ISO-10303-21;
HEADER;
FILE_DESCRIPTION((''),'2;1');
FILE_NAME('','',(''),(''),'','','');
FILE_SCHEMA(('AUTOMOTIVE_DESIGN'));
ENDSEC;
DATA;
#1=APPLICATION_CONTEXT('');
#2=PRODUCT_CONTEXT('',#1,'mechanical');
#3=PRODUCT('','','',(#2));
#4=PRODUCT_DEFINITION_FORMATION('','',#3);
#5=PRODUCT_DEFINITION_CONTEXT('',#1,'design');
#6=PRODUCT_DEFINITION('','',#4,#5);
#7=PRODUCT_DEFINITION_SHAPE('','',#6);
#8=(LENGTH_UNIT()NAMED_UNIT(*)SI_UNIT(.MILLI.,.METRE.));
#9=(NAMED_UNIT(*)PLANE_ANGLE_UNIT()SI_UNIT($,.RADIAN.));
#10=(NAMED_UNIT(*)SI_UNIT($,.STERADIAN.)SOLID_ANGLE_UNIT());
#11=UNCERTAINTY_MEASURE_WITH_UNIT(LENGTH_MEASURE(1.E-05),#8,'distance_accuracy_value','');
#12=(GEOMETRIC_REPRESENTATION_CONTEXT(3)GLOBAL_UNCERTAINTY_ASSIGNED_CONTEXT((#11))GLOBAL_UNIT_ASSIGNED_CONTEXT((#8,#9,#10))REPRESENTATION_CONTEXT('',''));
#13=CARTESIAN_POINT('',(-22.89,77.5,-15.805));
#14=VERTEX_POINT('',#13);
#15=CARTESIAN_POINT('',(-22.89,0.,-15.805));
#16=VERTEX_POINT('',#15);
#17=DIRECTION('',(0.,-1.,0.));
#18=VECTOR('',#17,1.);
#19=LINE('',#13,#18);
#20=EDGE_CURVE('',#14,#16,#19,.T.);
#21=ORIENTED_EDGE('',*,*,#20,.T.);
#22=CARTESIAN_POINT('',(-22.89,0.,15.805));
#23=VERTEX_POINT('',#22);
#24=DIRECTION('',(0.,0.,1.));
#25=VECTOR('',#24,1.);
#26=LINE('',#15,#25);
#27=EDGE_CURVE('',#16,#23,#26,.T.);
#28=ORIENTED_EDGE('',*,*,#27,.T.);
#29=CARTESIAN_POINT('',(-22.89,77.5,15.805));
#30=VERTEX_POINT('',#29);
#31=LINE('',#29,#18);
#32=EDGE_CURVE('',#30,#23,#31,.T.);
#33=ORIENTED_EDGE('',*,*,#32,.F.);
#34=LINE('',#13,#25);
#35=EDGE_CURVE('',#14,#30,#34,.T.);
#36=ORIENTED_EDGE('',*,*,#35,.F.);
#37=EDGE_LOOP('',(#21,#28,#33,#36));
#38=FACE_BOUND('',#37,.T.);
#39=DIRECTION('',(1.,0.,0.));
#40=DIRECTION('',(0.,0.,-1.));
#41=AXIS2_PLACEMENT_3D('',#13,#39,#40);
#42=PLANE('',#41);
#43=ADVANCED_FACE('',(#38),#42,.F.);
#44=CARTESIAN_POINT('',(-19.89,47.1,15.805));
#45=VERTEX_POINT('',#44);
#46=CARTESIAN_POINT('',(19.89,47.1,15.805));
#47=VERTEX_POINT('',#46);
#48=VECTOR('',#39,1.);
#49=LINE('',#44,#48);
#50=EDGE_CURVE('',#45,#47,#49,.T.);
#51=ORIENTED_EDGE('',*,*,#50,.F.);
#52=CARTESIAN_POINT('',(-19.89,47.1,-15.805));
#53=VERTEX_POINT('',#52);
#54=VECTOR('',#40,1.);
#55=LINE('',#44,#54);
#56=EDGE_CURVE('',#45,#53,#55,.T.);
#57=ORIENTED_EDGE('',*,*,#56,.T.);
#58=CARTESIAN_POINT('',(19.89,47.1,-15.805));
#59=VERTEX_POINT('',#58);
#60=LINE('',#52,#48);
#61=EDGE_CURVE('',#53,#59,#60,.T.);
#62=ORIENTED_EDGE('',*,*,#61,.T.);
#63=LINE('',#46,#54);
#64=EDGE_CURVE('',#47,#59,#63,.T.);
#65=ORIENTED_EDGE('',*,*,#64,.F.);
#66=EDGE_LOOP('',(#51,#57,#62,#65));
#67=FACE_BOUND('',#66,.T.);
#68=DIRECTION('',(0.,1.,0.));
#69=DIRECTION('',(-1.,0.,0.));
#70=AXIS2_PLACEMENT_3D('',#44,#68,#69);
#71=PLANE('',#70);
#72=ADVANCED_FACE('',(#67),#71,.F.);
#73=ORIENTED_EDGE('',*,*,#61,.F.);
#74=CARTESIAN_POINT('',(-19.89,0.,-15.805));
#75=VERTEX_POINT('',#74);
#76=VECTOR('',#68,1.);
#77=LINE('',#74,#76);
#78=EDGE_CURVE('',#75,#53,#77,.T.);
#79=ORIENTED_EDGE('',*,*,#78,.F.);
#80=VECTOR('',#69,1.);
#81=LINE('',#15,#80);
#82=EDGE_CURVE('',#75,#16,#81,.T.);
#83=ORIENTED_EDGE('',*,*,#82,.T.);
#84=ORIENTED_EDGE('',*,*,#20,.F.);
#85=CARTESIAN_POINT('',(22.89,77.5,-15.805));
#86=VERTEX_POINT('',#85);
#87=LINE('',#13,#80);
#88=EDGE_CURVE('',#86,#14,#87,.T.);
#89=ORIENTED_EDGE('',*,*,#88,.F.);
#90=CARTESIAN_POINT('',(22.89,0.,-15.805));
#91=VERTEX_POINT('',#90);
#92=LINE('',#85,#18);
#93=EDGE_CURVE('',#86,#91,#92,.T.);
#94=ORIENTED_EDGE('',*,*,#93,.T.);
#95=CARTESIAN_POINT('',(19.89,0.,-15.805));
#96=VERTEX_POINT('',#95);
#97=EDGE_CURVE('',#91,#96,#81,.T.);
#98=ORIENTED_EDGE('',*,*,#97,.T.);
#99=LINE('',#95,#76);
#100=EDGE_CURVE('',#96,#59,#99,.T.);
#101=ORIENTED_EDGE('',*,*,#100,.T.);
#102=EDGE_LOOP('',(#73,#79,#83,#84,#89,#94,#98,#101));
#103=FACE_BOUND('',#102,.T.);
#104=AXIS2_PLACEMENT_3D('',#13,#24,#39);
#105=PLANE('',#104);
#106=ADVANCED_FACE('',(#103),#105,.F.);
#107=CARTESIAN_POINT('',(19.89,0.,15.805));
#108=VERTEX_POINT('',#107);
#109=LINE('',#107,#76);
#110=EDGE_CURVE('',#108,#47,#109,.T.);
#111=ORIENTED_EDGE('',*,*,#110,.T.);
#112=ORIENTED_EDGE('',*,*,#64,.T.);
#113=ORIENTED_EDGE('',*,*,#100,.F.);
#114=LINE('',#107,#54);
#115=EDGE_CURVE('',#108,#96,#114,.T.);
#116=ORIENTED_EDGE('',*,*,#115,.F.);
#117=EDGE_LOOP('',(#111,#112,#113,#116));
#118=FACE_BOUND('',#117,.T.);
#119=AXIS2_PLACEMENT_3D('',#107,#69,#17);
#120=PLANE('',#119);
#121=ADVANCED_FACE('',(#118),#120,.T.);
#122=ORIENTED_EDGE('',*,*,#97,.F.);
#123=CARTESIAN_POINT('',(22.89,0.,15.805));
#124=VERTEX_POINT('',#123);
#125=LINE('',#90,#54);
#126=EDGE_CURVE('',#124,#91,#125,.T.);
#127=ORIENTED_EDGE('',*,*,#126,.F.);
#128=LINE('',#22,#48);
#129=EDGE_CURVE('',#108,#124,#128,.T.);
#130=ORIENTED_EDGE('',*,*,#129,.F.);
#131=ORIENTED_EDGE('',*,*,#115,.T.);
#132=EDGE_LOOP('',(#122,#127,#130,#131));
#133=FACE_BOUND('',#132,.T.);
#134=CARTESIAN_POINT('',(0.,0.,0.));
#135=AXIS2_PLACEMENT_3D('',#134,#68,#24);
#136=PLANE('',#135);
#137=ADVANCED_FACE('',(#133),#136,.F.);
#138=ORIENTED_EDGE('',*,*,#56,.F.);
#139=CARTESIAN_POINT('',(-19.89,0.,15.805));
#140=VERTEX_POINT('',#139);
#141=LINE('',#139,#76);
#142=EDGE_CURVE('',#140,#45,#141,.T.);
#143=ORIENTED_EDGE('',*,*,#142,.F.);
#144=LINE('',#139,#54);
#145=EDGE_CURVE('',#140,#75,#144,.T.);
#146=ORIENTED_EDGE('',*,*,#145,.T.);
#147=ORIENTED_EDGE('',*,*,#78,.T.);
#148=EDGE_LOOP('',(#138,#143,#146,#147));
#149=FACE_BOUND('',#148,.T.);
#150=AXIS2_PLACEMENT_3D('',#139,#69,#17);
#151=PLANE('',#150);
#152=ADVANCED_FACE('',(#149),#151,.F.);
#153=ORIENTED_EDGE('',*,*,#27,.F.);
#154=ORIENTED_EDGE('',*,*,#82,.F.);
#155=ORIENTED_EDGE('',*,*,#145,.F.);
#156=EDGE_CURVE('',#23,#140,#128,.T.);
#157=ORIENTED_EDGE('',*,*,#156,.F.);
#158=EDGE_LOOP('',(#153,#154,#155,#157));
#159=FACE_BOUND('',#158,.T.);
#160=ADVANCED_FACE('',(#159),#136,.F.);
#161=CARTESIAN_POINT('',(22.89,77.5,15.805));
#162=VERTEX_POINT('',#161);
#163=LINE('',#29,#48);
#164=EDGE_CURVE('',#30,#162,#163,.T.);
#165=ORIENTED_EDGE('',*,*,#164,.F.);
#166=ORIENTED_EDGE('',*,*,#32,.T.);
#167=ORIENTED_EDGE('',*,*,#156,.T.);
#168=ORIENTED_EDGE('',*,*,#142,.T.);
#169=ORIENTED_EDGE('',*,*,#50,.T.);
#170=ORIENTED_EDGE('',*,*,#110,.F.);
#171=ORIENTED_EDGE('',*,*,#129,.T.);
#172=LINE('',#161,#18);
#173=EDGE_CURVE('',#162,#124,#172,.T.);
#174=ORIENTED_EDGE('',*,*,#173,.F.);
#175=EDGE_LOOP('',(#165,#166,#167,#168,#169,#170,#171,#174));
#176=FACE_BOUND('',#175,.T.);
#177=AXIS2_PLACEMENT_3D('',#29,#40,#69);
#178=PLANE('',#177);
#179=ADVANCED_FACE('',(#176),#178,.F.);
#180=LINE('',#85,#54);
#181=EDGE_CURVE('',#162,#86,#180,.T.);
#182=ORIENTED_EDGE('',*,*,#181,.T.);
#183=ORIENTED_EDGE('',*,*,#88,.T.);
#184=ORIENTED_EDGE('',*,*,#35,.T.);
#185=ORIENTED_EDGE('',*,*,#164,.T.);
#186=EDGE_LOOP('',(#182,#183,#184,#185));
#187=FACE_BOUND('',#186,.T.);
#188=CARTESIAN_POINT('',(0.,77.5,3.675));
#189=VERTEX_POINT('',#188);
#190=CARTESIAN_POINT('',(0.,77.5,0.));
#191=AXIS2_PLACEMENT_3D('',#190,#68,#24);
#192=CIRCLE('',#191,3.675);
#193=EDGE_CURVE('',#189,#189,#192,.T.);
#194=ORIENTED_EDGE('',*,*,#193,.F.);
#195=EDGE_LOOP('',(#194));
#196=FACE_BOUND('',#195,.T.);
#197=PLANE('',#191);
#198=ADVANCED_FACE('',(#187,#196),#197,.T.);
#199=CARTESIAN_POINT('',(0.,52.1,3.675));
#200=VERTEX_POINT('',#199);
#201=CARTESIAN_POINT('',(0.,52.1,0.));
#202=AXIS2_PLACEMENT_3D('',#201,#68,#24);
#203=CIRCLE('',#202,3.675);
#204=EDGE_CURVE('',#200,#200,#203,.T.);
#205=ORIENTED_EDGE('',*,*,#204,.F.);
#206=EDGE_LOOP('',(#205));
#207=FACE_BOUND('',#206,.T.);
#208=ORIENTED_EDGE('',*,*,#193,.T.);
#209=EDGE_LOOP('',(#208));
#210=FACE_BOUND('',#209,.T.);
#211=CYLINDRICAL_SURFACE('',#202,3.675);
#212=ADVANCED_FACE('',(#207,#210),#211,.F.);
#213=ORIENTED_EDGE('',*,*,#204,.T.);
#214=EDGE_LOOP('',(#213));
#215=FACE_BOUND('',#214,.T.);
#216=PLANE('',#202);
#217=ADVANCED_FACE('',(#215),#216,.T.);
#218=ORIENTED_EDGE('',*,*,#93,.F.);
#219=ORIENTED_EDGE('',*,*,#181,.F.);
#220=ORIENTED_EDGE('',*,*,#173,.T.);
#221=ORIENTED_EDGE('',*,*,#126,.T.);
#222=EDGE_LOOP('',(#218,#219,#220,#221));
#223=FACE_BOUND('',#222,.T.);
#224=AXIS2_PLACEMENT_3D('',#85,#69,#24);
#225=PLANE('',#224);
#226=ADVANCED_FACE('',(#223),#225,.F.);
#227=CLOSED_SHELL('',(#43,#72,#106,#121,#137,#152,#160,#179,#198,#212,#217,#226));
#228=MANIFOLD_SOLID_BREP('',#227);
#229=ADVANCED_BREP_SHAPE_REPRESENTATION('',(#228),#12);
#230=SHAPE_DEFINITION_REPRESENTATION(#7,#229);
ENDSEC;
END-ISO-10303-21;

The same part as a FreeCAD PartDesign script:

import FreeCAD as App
import Part
import Sketcher


def add_polygon(sketch, points):
    """Adds a closed chain of lines whose ends are joined by coincident constraints."""
    first, n = sketch.GeometryCount, len(points)
    for a, b in zip(points, points[1:] + points[:1]):
        sketch.addGeometry(Part.LineSegment(App.Vector(*a, 0), App.Vector(*b, 0)), False)
    for i in range(n):
        sketch.addConstraint(Sketcher.Constraint("Coincident", first + i, 2, first + (i + 1) % n, 1))

doc = App.newDocument("Part")
body = doc.addObject("PartDesign::Body", "Body")

sketch1 = body.newObject("Sketcher::SketchObject", "Sketch")
sketch1.AttachmentSupport = (doc.getObject("XZ_Plane"), [""])
sketch1.MapMode = "FlatFace"
add_polygon(sketch1, [(-23, -16), (-23, 16), (23, 16), (23, -16)])
sketch1.addConstraint([
    Sketcher.Constraint("Vertical", 0),
    Sketcher.Constraint("Horizontal", 1),
    Sketcher.Constraint("Vertical", 2),
    Sketcher.Constraint("Horizontal", 3),
    Sketcher.Constraint("Symmetric", 0, 2, 2, 2, -1, 1),
    Sketcher.Constraint("DistanceX", 1, 1, 1, 2, 45.78),
    Sketcher.Constraint("DistanceY", 0, 1, 0, 2, 31.61),
])
pad1 = body.newObject("PartDesign::Pad", "Pad")
pad1.Profile = sketch1
pad1.Length = 77.5
pad1.Reversed = True

sketch2 = body.newObject("Sketcher::SketchObject", "Sketch001")
sketch2.AttachmentSupport = (doc.getObject("XZ_Plane"), [""])
sketch2.MapMode = "FlatFace"
sketch2.AttachmentOffset = App.Placement(App.Vector(0, 0, -77.5), App.Rotation())
sketch2.addGeometry(Part.Circle(App.Vector(0, 0, 0), App.Vector(0, 0, 1), 3.7), False)
sketch2.addConstraint([
    Sketcher.Constraint("Coincident", 0, 3, -1, 1),
    Sketcher.Constraint("Diameter", 0, 7.35),
])
pocket1 = body.newObject("PartDesign::Pocket", "Pocket")
pocket1.Profile = sketch2
pocket1.Length = 25.4
pocket1.Reversed = True

sketch3 = body.newObject("Sketcher::SketchObject", "Sketch002")
sketch3.AttachmentSupport = (doc.getObject("XY_Plane"), [""])
sketch3.MapMode = "FlatFace"
sketch3.AttachmentOffset = App.Placement(App.Vector(0, 0, -15.805), App.Rotation())
add_polygon(sketch3, [(20, 47), (20, 0), (-20, 0), (-20, 47)])
sketch3.addConstraint([
    Sketcher.Constraint("Vertical", 0),
    Sketcher.Constraint("Horizontal", 1),
    Sketcher.Constraint("Vertical", 2),
    Sketcher.Constraint("Horizontal", 3),
    Sketcher.Constraint("Symmetric", 0, 2, 1, 2, -1, 1),
    Sketcher.Constraint("DistanceY", 0, 2, 0, 1, 47.1),
    Sketcher.Constraint("DistanceX", 1, 2, 1, 1, 39.78),
])
pocket2 = body.newObject("PartDesign::Pocket", "Pocket001")
pocket2.Profile = sketch3
pocket2.Type = "ThroughAll"
pocket2.Reversed = True

doc.recompute()
